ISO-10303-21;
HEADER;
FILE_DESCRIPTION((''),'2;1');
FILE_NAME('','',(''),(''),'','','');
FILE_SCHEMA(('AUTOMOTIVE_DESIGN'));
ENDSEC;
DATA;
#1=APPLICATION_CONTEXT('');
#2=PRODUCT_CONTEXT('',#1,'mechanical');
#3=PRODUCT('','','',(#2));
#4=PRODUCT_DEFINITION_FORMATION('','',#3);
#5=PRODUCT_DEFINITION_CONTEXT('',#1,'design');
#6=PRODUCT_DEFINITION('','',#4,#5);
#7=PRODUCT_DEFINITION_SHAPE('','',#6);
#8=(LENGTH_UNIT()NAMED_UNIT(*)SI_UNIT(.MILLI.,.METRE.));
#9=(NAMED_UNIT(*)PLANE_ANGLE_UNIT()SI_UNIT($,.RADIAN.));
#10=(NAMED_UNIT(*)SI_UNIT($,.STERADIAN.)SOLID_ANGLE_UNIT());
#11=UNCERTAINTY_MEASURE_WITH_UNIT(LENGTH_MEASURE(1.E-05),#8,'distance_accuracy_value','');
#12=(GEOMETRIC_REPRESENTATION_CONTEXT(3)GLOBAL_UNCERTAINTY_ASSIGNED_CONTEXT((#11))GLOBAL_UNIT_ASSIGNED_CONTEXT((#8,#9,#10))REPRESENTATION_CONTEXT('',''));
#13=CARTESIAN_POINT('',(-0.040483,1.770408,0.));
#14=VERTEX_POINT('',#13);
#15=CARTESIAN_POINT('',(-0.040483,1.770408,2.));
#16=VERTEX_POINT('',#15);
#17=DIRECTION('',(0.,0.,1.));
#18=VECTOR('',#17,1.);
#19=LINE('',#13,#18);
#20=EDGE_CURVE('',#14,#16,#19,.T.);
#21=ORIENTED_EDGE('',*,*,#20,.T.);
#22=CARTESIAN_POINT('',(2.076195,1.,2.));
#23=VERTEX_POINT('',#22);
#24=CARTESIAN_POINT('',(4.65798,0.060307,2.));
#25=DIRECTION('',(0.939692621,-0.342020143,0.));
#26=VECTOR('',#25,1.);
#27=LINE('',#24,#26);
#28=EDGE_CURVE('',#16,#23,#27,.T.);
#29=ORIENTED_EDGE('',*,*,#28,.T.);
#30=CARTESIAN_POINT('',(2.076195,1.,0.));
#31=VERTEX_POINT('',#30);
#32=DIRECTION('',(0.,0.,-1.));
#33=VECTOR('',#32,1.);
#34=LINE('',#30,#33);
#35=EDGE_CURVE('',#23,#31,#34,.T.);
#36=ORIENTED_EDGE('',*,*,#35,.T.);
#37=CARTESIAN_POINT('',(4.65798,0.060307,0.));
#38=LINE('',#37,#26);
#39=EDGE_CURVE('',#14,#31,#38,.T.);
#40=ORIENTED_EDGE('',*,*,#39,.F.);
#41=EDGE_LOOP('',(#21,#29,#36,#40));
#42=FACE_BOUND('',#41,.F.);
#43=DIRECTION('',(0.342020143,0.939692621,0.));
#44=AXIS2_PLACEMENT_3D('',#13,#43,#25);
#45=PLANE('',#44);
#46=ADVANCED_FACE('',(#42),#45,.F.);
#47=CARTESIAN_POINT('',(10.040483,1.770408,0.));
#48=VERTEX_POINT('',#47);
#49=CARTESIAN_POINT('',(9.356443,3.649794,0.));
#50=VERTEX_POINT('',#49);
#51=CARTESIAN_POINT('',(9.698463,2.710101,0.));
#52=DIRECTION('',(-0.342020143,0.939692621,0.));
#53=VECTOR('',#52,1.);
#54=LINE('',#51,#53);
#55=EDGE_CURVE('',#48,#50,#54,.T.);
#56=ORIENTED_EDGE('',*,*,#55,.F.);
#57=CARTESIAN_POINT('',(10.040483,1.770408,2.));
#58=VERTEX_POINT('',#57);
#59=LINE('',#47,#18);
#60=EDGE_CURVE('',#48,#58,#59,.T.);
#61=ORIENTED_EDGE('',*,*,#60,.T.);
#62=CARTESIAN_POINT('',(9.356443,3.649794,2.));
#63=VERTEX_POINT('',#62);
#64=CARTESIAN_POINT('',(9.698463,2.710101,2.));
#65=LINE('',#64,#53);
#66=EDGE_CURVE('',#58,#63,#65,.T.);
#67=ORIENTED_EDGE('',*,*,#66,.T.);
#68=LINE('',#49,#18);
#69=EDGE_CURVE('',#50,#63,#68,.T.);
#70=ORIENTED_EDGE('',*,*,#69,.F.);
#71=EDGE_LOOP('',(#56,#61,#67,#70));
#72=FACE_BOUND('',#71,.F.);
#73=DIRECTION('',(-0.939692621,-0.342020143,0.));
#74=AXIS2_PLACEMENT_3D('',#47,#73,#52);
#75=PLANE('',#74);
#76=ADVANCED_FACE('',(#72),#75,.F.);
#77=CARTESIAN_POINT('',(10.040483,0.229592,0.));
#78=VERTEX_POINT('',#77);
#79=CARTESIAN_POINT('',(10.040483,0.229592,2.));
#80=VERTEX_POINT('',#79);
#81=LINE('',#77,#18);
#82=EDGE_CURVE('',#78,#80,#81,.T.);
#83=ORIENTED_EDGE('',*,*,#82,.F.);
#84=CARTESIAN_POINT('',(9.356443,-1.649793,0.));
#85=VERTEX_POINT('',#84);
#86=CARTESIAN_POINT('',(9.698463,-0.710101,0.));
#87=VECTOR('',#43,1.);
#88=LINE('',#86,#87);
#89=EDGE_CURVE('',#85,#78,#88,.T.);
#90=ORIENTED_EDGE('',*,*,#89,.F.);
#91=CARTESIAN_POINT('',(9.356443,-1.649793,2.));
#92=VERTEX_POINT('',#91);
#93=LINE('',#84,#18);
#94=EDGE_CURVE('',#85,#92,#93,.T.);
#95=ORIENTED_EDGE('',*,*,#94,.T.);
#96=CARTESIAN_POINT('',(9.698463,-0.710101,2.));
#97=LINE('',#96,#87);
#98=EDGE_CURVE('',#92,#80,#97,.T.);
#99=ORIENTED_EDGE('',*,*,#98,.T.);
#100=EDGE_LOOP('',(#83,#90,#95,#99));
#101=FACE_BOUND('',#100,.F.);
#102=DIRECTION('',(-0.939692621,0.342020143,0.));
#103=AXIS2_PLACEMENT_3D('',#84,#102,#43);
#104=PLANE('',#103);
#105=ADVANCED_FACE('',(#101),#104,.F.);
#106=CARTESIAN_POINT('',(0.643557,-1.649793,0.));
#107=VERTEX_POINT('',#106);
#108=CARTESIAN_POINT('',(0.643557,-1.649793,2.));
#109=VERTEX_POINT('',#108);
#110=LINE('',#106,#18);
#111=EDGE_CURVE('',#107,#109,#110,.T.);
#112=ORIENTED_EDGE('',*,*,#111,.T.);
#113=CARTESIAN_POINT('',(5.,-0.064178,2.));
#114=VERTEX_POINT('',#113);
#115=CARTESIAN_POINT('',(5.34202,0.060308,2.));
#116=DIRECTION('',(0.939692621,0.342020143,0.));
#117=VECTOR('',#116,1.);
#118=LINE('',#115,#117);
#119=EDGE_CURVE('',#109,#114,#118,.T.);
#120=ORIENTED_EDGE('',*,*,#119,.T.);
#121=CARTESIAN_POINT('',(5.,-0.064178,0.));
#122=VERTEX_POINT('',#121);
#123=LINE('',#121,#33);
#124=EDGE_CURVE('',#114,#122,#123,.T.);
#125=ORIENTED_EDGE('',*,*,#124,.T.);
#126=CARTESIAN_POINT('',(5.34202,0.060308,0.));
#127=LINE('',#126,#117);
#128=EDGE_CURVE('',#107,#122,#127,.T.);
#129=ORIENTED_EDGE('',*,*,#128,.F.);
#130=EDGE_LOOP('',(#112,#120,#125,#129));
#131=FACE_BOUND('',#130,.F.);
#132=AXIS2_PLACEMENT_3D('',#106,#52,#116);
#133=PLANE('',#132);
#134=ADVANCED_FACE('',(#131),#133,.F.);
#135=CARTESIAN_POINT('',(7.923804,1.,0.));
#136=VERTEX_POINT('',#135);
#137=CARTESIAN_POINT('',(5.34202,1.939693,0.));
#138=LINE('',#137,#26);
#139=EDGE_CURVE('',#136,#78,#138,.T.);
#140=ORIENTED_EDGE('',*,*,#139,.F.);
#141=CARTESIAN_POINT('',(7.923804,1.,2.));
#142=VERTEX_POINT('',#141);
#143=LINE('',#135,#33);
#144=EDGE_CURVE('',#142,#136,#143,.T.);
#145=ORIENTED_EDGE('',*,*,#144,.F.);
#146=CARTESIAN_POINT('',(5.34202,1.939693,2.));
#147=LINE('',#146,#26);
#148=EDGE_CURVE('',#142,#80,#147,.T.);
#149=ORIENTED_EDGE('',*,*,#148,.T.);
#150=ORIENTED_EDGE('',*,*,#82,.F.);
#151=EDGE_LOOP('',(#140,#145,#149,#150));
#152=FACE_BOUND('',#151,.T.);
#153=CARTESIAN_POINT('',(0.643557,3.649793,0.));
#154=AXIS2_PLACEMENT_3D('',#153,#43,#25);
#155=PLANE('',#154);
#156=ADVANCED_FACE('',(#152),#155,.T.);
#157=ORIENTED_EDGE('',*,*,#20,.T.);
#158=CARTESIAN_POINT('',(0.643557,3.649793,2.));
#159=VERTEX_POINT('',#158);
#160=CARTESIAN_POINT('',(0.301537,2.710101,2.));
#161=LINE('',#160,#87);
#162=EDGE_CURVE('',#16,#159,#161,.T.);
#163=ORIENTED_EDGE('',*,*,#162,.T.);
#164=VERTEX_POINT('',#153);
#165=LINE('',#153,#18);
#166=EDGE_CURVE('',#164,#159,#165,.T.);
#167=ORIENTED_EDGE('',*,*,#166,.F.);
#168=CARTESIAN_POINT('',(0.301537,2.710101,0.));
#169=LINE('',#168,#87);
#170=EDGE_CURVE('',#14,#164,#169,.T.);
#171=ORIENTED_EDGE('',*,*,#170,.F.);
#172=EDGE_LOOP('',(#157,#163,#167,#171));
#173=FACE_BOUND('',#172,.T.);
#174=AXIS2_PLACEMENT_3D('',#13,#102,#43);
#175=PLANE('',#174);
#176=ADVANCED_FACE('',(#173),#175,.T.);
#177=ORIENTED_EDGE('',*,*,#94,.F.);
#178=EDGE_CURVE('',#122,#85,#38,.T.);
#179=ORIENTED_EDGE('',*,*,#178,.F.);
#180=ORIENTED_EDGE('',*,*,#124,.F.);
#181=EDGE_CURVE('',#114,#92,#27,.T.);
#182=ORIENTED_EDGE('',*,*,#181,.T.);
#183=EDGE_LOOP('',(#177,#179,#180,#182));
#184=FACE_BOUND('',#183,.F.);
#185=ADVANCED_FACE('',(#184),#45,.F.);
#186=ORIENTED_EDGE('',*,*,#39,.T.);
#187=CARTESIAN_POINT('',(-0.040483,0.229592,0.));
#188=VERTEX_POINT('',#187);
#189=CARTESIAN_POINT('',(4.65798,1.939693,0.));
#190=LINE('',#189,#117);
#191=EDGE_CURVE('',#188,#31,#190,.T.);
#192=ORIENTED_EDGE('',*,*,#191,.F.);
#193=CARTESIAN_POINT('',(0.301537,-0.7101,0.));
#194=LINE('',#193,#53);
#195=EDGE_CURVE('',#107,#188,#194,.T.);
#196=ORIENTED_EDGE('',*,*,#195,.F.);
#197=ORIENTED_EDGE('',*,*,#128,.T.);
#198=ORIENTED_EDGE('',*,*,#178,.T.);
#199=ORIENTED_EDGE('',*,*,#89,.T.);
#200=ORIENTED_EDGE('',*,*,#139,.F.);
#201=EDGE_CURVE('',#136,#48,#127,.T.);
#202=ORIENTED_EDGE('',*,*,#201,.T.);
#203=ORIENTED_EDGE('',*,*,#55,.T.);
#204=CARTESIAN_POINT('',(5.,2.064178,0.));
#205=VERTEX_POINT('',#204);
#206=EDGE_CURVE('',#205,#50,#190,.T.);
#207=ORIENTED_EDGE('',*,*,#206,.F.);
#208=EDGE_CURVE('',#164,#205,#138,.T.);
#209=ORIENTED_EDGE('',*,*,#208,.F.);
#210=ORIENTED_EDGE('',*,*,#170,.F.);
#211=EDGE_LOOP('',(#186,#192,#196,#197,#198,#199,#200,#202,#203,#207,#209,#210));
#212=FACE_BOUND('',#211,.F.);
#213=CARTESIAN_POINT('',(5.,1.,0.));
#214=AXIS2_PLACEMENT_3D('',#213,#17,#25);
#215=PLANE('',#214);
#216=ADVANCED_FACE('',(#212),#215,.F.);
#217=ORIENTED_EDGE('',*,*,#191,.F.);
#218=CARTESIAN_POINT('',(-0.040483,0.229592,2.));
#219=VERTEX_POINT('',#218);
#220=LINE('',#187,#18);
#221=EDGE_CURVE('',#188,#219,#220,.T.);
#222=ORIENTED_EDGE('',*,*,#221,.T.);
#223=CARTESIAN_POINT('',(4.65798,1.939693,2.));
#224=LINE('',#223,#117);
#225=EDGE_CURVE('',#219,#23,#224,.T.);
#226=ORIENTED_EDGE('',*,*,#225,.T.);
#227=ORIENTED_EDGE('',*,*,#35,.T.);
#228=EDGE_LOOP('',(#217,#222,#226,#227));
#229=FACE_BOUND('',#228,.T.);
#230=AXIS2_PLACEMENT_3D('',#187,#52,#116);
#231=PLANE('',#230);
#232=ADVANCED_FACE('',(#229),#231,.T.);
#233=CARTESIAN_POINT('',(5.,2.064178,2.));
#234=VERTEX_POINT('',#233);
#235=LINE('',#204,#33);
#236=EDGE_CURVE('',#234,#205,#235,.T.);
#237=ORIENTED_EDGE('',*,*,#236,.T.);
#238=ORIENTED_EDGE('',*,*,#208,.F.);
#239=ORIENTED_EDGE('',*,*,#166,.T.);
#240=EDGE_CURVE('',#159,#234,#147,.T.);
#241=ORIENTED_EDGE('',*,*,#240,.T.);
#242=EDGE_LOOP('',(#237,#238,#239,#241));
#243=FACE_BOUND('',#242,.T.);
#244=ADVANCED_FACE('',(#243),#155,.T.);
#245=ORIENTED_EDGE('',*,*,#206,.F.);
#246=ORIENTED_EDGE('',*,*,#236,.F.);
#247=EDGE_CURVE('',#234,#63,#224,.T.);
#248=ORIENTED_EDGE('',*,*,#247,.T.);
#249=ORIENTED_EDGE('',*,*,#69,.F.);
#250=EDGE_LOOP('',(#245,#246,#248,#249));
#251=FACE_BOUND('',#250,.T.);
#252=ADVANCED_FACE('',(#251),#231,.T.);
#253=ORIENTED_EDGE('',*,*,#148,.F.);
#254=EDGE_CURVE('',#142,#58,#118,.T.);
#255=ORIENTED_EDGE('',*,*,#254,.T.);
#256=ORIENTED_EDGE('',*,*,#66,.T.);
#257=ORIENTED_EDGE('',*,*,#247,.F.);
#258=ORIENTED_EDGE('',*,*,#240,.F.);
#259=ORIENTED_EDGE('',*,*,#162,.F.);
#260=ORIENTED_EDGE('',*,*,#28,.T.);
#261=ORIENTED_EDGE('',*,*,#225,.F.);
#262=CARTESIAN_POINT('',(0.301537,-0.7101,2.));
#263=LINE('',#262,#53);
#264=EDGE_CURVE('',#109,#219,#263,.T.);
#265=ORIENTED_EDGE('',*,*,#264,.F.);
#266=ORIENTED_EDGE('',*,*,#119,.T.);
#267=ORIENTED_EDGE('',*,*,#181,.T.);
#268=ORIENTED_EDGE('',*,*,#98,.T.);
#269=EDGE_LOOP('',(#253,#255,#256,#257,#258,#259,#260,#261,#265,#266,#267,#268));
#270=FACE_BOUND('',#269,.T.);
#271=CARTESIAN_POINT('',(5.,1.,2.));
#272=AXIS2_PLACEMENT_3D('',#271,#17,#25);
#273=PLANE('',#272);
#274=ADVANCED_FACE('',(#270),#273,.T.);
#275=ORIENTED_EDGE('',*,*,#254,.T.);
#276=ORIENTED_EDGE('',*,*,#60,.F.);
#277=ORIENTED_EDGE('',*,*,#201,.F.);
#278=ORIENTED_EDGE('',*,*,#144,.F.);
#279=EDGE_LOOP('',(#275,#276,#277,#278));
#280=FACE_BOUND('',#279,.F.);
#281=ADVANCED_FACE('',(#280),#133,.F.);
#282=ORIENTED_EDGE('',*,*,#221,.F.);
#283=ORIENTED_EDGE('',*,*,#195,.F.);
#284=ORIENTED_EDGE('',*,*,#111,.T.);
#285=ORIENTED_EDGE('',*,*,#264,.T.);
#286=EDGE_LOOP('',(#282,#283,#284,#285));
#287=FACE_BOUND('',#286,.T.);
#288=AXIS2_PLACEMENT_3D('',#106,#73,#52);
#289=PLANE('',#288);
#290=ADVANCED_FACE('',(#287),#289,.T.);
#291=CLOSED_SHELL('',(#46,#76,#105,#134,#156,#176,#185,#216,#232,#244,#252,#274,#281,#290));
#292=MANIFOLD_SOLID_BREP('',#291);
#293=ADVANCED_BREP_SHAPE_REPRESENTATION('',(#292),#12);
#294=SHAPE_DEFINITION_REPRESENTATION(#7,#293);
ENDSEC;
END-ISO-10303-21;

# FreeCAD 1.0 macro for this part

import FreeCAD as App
import Part
import Sketcher

V = App.Vector


def add_polygon(sketch, points):
    """Adds a closed chain of lines whose ends are joined by coincident constraints."""
    first, n = sketch.GeometryCount, len(points)
    for a, b in zip(points, points[1:] + points[:1]):
        sketch.addGeometry(Part.LineSegment(App.Vector(*a, 0), App.Vector(*b, 0)), False)
    for i in range(n):
        sketch.addConstraint(Sketcher.Constraint("Coincident", first + i, 2, first + (i + 1) % n, 1))

doc = App.newDocument("Part")
body = doc.addObject("PartDesign::Body", "Body")

# Sketch on XY plane
sketch1 = doc.addObject("Sketcher::SketchObject", "Sketch")
body.addObject(sketch1)
sketch1.AttachmentSupport = (doc.XY_Plane, [""])
sketch1.MapMode = "FlatFace"
add_polygon(sketch1, [(0, 2), (0, 0), (10, 0), (10, 2)])  # lines 0-3
sketch1.addConstraint(Sketcher.Constraint("Vertical", 0))
sketch1.addConstraint(Sketcher.Constraint("Horizontal", 1))
sketch1.addConstraint(Sketcher.Constraint("Vertical", 2))
sketch1.addConstraint(Sketcher.Constraint("Horizontal", 3))
sketch1.addConstraint(Sketcher.Constraint("Coincident", 0, 2, -1, 1))
sketch1.addConstraint(Sketcher.Constraint("DistanceX", 1, 1, 1, 2, 10.0))
sketch1.addConstraint(Sketcher.Constraint("DistanceY", 0, 2, 0, 1, 2.0))
pad1 = doc.addObject("PartDesign::Pad", "Pad")
body.addObject(pad1)
pad1.Profile = sketch1
pad1.Length = 2
body2 = doc.addObject("PartDesign::Body", "Body001")
doc.recompute()

body.Placement = App.Placement(V(-0.040483, 1.770408, 0), App.Rotation(V(0, 0, 1), 340))
boolean = doc.addObject("PartDesign::Boolean", "Boolean")
body2.addObject(boolean)
boolean.Type = "Fuse"
boolean.addObjects([body])
body3 = doc.addObject("PartDesign::Body", "Body002")

# Sketch on XY plane
sketch2 = doc.addObject("Sketcher::SketchObject", "Sketch001")
body3.addObject(sketch2)
sketch2.AttachmentSupport = (doc.getObject("XY_Plane002"), [""])
sketch2.MapMode = "FlatFace"
add_polygon(sketch2, [(0, 2), (0, 0), (10, 0), (10, 2)])  # lines 0-3
sketch2.addConstraint(Sketcher.Constraint("Vertical", 0))
sketch2.addConstraint(Sketcher.Constraint("Horizontal", 1))
sketch2.addConstraint(Sketcher.Constraint("Vertical", 2))
sketch2.addConstraint(Sketcher.Constraint("Horizontal", 3))
sketch2.addConstraint(Sketcher.Constraint("Coincident", 0, 2, -1, 1))
sketch2.addConstraint(Sketcher.Constraint("DistanceX", 1, 1, 1, 2, 10.0))
sketch2.addConstraint(Sketcher.Constraint("DistanceY", 0, 2, 0, 1, 2.0))
pad2 = doc.addObject("PartDesign::Pad", "Pad001")
body3.addObject(pad2)
pad2.Profile = sketch2
pad2.Length = 2
body4 = doc.addObject("PartDesign::Body", "Body003")
doc.recompute()

body3.Placement = App.Placement(V(0.643557, -1.649793, 0), App.Rotation(V(0, 0, 1), 20))
boolean2 = doc.addObject("PartDesign::Boolean", "Boolean001")
body4.addObject(boolean2)
boolean2.Type = "Fuse"
boolean2.addObjects([body3])
doc.recompute()

boolean3 = doc.addObject("PartDesign::Boolean", "Boolean002")
body4.addObject(boolean3)
boolean3.Type = "Fuse"
boolean3.addObjects([body2])

doc.recompute()
